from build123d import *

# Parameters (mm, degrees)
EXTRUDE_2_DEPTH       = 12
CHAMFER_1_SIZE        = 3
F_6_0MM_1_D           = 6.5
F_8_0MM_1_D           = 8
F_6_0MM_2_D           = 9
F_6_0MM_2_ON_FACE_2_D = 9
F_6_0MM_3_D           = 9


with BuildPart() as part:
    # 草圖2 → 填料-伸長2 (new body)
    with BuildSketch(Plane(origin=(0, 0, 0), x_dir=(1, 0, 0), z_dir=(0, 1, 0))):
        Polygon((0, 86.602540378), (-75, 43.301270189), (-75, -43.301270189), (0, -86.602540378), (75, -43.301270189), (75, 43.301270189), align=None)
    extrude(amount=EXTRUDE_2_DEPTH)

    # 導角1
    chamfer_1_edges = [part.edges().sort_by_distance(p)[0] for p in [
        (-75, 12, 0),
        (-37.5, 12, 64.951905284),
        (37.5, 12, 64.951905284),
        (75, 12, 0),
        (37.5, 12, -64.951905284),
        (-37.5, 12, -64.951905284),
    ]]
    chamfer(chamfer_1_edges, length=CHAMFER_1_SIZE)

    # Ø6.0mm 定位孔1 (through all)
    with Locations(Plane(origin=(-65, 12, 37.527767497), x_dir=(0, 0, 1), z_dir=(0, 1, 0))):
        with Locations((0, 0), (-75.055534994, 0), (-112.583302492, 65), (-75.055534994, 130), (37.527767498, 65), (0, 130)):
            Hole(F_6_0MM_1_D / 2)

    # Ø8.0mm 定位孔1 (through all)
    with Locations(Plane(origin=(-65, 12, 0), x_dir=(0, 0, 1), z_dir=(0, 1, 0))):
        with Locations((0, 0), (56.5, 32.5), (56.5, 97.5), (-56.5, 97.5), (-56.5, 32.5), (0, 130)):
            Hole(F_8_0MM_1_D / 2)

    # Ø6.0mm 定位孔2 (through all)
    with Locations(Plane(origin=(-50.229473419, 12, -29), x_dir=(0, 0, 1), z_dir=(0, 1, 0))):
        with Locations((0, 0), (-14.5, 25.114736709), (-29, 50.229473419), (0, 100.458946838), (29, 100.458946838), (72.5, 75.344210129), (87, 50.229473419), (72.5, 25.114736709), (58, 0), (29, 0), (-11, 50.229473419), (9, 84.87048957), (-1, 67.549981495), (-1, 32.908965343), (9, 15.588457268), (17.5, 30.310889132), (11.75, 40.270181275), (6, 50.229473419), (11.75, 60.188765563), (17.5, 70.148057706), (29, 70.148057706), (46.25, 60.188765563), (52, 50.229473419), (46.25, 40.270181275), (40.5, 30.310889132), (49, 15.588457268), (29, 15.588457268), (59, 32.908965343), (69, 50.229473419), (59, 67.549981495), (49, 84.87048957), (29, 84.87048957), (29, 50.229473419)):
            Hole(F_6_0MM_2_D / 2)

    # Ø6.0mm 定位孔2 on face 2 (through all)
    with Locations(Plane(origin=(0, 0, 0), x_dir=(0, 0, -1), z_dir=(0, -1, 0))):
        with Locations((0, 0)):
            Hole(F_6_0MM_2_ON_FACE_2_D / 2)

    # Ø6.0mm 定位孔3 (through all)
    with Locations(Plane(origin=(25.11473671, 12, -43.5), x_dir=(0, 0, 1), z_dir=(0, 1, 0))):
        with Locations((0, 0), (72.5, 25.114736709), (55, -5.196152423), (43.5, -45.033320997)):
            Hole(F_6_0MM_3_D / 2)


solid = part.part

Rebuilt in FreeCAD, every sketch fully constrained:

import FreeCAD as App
import Part
import Sketcher
Q = App.Units.Quantity


def edges_at(feature, points):
    """Names of the edges that pass closest to the given points."""
    edges = feature.Shape.Edges
    near = lambda p: min(range(len(edges)), key=lambda i: edges[i].distToShape(Part.Vertex(*p))[0])
    return sorted({f"Edge{near(p) + 1}" for p in points})

doc = App.newDocument("Part")
params = doc.addObject("Spreadsheet::Sheet", "Params")
for row, (alias, value) in enumerate([
    ("pad1_length", "12 mm"),
    ("chamfer_size", "3 mm"),
    ("sketch2_diameter", "6.5 mm"),
    ("hole_diameter", "6.5 mm"),
    ("sketch3_diameter", "8 mm"),
    ("hole2_diameter", "8 mm"),
    ("sketch4_diameter", "9 mm"),
    ("hole3_diameter", "9 mm"),
    ("sketch5_diameter", "9 mm"),
    ("hole4_diameter", "9 mm"),
    ("sketch6_diameter", "9 mm"),
    ("hole5_diameter", "9 mm"),
], start=1):
    params.set(f"A{row}", alias)
    params.set(f"B{row}", "=" + value)
    params.setAlias(f"B{row}", alias)

body = doc.addObject("PartDesign::Body", "Body")

# Sketch on XZ plane
sketch1 = body.newObject("Sketcher::SketchObject", "Sketch")
sketch1.AttachmentSupport = (doc.getObject("XZ_Plane"), [""])
sketch1.MapMode = "FlatFace"
sketch1.addGeometry(Part.LineSegment(App.Vector(0, -87, 0), App.Vector(-75, -43, 0)), False)
sketch1.addGeometry(Part.LineSegment(App.Vector(-75, -43, 0), App.Vector(-75, 43, 0)), False)
sketch1.addGeometry(Part.LineSegment(App.Vector(-75, 43, 0), App.Vector(0, 87, 0)), False)
sketch1.addGeometry(Part.LineSegment(App.Vector(0, 87, 0), App.Vector(75, 43, 0)), False)
sketch1.addGeometry(Part.LineSegment(App.Vector(75, 43, 0), App.Vector(75, -43, 0)), False)
sketch1.addGeometry(Part.LineSegment(App.Vector(75, -43, 0), App.Vector(0, -87, 0)), False)
sketch1.addConstraint(Sketcher.Constraint("Coincident", 0, 2, 1, 1))
sketch1.addConstraint(Sketcher.Constraint("Coincident", 1, 2, 2, 1))
sketch1.addConstraint(Sketcher.Constraint("Coincident", 2, 2, 3, 1))
sketch1.addConstraint(Sketcher.Constraint("Coincident", 3, 2, 4, 1))
sketch1.addConstraint(Sketcher.Constraint("Coincident", 4, 2, 5, 1))
sketch1.addConstraint(Sketcher.Constraint("Coincident", 5, 2, 0, 1))
sketch1.addConstraint(Sketcher.Constraint("Vertical", 1))
sketch1.addConstraint(Sketcher.Constraint("Vertical", 4))
sketch1.addConstraint(Sketcher.Constraint("Symmetric", 0, 2, 3, 2, -1, 1))
sketch1.addConstraint(Sketcher.Constraint("Symmetric", 2, 2, 5, 2, -1, 1))
sketch1.addConstraint(Sketcher.Constraint("PointOnObject", 2, 2, -2))
sketch1.addConstraint(Sketcher.Constraint("Parallel", 2, 5))
sketch1.addConstraint(Sketcher.Constraint("Horizontal", 1, 2, 3, 2))
sketch1.addConstraint(Sketcher.Constraint("Angle", 0, Q("150 deg")))
sketch1.addConstraint(Sketcher.Constraint("DistanceX", 0, 2, -1, 1, Q("75 mm")))
sketch1.addConstraint(Sketcher.Constraint("DistanceY", 1, 1, 1, 2, Q("86.60254 mm")))
pad1 = body.newObject("PartDesign::Pad", "Pad")
pad1.Profile = sketch1
pad1.setExpression("Length", "Params.pad1_length")
pad1.Reversed = True
doc.recompute()

chamfer = body.newObject("PartDesign::Chamfer", "Chamfer")
chamfer.Base = (pad1, edges_at(pad1, [
    (-75, 12, 0),
    (-37.5, 12, 64.952),
    (37.5, 12, 64.952),
    (75, 12, 0),
    (37.5, 12, -64.952),
    (-37.5, 12, -64.952),
]))
chamfer.setExpression("Size", "Params.chamfer_size")

# Sketch on XZ plane
sketch2 = body.newObject("Sketcher::SketchObject", "Sketch001")
sketch2.AttachmentSupport = (doc.getObject("XZ_Plane"), [""])
sketch2.MapMode = "FlatFace"
sketch2.AttachmentOffset = App.Placement(App.Vector(0, 0, -12), App.Rotation())
sketch2.addGeometry(Part.Circle(App.Vector(-65, 37.5, 0), App.Vector(0, 0, 1), 3.2), False)
sketch2.addGeometry(Part.Circle(App.Vector(-65, -37.5, 0), App.Vector(0, 0, 1), 3.2), False)
sketch2.addGeometry(Part.Circle(App.Vector(0, -75.1, 0), App.Vector(0, 0, 1), 3.2), False)
sketch2.addGeometry(Part.Circle(App.Vector(65, -37.5, 0), App.Vector(0, 0, 1), 3.2), False)
sketch2.addGeometry(Part.Circle(App.Vector(0, 75.1, 0), App.Vector(0, 0, 1), 3.2), False)
sketch2.addGeometry(Part.Circle(App.Vector(65, 37.5, 0), App.Vector(0, 0, 1), 3.2), False)
sketch2.addConstraint(Sketcher.Constraint("Equal", 0, 1))
sketch2.addConstraint(Sketcher.Constraint("Equal", 1, 2))
sketch2.addConstraint(Sketcher.Constraint("Equal", 2, 3))
sketch2.addConstraint(Sketcher.Constraint("Equal", 3, 4))
sketch2.addConstraint(Sketcher.Constraint("Equal", 4, 5))
sketch2.addConstraint(Sketcher.Constraint("Symmetric", 0, 3, 3, 3, -1, 1))
sketch2.addConstraint(Sketcher.Constraint("Symmetric", 2, 3, 4, 3, -1, 1))
sketch2.addConstraint(Sketcher.Constraint("Symmetric", 1, 3, 5, 3, -1, 1))
sketch2.addConstraint(Sketcher.Constraint("Symmetric", 1, 3, 3, 3, -2))
sketch2.addConstraint(Sketcher.Constraint("PointOnObject", 2, 3, -2))
sketch2.addConstraint(Sketcher.Constraint("Diameter", 0, Q("6.5 mm")))
sketch2.addConstraint(Sketcher.Constraint("DistanceX", 0, 3, -1, 1, Q("65 mm")))
sketch2.addConstraint(Sketcher.Constraint("DistanceY", 2, 3, 4, 3, Q("150.11107 mm")))
sketch2.addConstraint(Sketcher.Constraint("DistanceY", -1, 1, 0, 3, Q("37.527767 mm")))
sketch2.setExpression("Constraints[10]", "Params.sketch2_diameter")
doc.recompute()
hole = body.newObject("PartDesign::Hole", "Hole")
hole.Profile = sketch2
hole.ThreadType = "None"
hole.setExpression("Diameter", "Params.hole_diameter")
hole.DepthType = "ThroughAll"
hole.Reversed = True

# Sketch on XZ plane
sketch3 = body.newObject("Sketcher::SketchObject", "Sketch002")
sketch3.AttachmentSupport = (doc.getObject("XZ_Plane"), [""])
sketch3.MapMode = "FlatFace"
sketch3.AttachmentOffset = App.Placement(App.Vector(0, 0, -12), App.Rotation())
sketch3.addGeometry(Part.Circle(App.Vector(-65, 0, 0), App.Vector(0, 0, 1), 4), False)
sketch3.addGeometry(Part.Circle(App.Vector(-32.5, 56.5, 0), App.Vector(0, 0, 1), 4), False)
sketch3.addGeometry(Part.Circle(App.Vector(32.5, 56.5, 0), App.Vector(0, 0, 1), 4), False)
sketch3.addGeometry(Part.Circle(App.Vector(32.5, -56.5, 0), App.Vector(0, 0, 1), 4), False)
sketch3.addGeometry(Part.Circle(App.Vector(-32.5, -56.5, 0), App.Vector(0, 0, 1), 4), False)
sketch3.addGeometry(Part.Circle(App.Vector(65, 0, 0), App.Vector(0, 0, 1), 4), False)
sketch3.addConstraint(Sketcher.Constraint("Equal", 0, 1))
sketch3.addConstraint(Sketcher.Constraint("Equal", 1, 2))
sketch3.addConstraint(Sketcher.Constraint("Equal", 2, 3))
sketch3.addConstraint(Sketcher.Constraint("Equal", 3, 4))
sketch3.addConstraint(Sketcher.Constraint("Equal", 4, 5))
sketch3.addConstraint(Sketcher.Constraint("Symmetric", 1, 3, 3, 3, -1, 1))
sketch3.addConstraint(Sketcher.Constraint("Symmetric", 2, 3, 4, 3, -1, 1))
sketch3.addConstraint(Sketcher.Constraint("Symmetric", 0, 3, 5, 3, -1, 1))
sketch3.addConstraint(Sketcher.Constraint("Symmetric", 1, 3, 2, 3, -2))
sketch3.addConstraint(Sketcher.Constraint("PointOnObject", 0, 3, -1))
sketch3.addConstraint(Sketcher.Constraint("Diameter", 0, Q("8 mm")))
sketch3.addConstraint(Sketcher.Constraint("DistanceX", 0, 3, -1, 1, Q("65 mm")))
sketch3.addConstraint(Sketcher.Constraint("DistanceX", 1, 3, 2, 3, Q("65 mm")))
sketch3.addConstraint(Sketcher.Constraint("DistanceY", 3, 3, 2, 3, Q("113 mm")))
sketch3.setExpression("Constraints[10]", "Params.sketch3_diameter")
doc.recompute()
hole2 = body.newObject("PartDesign::Hole", "Hole001")
hole2.Profile = sketch3
hole2.ThreadType = "None"
hole2.setExpression("Diameter", "Params.hole2_diameter")
hole2.DepthType = "ThroughAll"
hole2.Reversed = True

# Sketch on XZ plane
sketch4 = body.newObject("Sketcher::SketchObject", "Sketch003")
sketch4.AttachmentSupport = (doc.getObject("XZ_Plane"), [""])
sketch4.MapMode = "FlatFace"
sketch4.AttachmentOffset = App.Placement(App.Vector(0, 0, -12), App.Rotation())
sketch4.addGeometry(Part.Circle(App.Vector(-50.2, -29, 0), App.Vector(0, 0, 1), 4.5), False)
sketch4.addGeometry(Part.Circle(App.Vector(-25.1, -43.5, 0), App.Vector(0, 0, 1), 4.5), False)
sketch4.addGeometry(Part.Circle(App.Vector(0, -58, 0), App.Vector(0, 0, 1), 4.5), False)
sketch4.addGeometry(Part.Circle(App.Vector(50.2, -29, 0), App.Vector(0, 0, 1), 4.5), False)
sketch4.addGeometry(Part.Circle(App.Vector(50.2, 0, 0), App.Vector(0, 0, 1), 4.5), False)
sketch4.addGeometry(Part.Circle(App.Vector(25.1, 43.5, 0), App.Vector(0, 0, 1), 4.5), False)
sketch4.addGeometry(Part.Circle(App.Vector(0, 58, 0), App.Vector(0, 0, 1), 4.5), False)
sketch4.addGeometry(Part.Circle(App.Vector(-25.1, 43.5, 0), App.Vector(0, 0, 1), 4.5), False)
sketch4.addGeometry(Part.Circle(App.Vector(-50.2, 29, 0), App.Vector(0, 0, 1), 4.5), False)
sketch4.addGeometry(Part.Circle(App.Vector(-50.2, 0, 0), App.Vector(0, 0, 1), 4.5), False)
sketch4.addGeometry(Part.Circle(App.Vector(0, -40, 0), App.Vector(0, 0, 1), 4.5), False)
sketch4.addGeometry(Part.Circle(App.Vector(34.6, -20, 0), App.Vector(0, 0, 1), 4.5), False)
sketch4.addGeometry(Part.Circle(App.Vector(17.3, -30, 0), App.Vector(0, 0, 1), 4.5), False)
sketch4.addGeometry(Part.Circle(App.Vector(-17.3, -30, 0), App.Vector(0, 0, 1), 4.5), False)
sketch4.addGeometry(Part.Circle(App.Vector(-34.6, -20, 0), App.Vector(0, 0, 1), 4.5), False)
sketch4.addGeometry(Part.Circle(App.Vector(-19.9, -11.5, 0), App.Vector(0, 0, 1), 4.5), False)
sketch4.addGeometry(Part.Circle(App.Vector(-10, -17.2, 0), App.Vector(0, 0, 1), 4.5), False)
sketch4.addGeometry(Part.Circle(App.Vector(0, -23, 0), App.Vector(0, 0, 1), 4.5), False)
sketch4.addGeometry(Part.Circle(App.Vector(10, -17.2, 0), App.Vector(0, 0, 1), 4.5), False)
sketch4.addGeometry(Part.Circle(App.Vector(19.9, -11.5, 0), App.Vector(0, 0, 1), 4.5), False)
sketch4.addGeometry(Part.Circle(App.Vector(19.9, 0, 0), App.Vector(0, 0, 1), 4.5), False)
sketch4.addGeometry(Part.Circle(App.Vector(10, 17.2, 0), App.Vector(0, 0, 1), 4.5), False)
sketch4.addGeometry(Part.Circle(App.Vector(0, 23, 0), App.Vector(0, 0, 1), 4.5), False)
sketch4.addGeometry(Part.Circle(App.Vector(-10, 17.2, 0), App.Vector(0, 0, 1), 4.5), False)
sketch4.addGeometry(Part.Circle(App.Vector(-19.9, 11.5, 0), App.Vector(0, 0, 1), 4.5), False)
sketch4.addGeometry(Part.Circle(App.Vector(-34.6, 20, 0), App.Vector(0, 0, 1), 4.5), False)
sketch4.addGeometry(Part.Circle(App.Vector(-34.6, 0, 0), App.Vector(0, 0, 1), 4.5), False)
sketch4.addGeometry(Part.Circle(App.Vector(-17.3, 30, 0), App.Vector(0, 0, 1), 4.5), False)
sketch4.addGeometry(Part.Circle(App.Vector(0, 40, 0), App.Vector(0, 0, 1), 4.5), False)
sketch4.addGeometry(Part.Circle(App.Vector(17.3, 30, 0), App.Vector(0, 0, 1), 4.5), False)
sketch4.addGeometry(Part.Circle(App.Vector(34.6, 20, 0), App.Vector(0, 0, 1), 4.5), False)
sketch4.addGeometry(Part.Circle(App.Vector(34.6, 0, 0), App.Vector(0, 0, 1), 4.5), False)
sketch4.addGeometry(Part.Circle(App.Vector(0, 0, 0), App.Vector(0, 0, 1), 4.5), False)
sketch4.addConstraint(Sketcher.Constraint("Coincident", 32, 3, -1, 1))
sketch4.addConstraint(Sketcher.Constraint("Equal", 0, 1))
sketch4.addConstraint(Sketcher.Constraint("Equal", 1, 2))
sketch4.addConstraint(Sketcher.Constraint("Equal", 2, 3))
sketch4.addConstraint(Sketcher.Constraint("Equal", 3, 4))
sketch4.addConstraint(Sketcher.Constraint("Equal", 4, 5))
sketch4.addConstraint(Sketcher.Constraint("Equal", 5, 6))
sketch4.addConstraint(Sketcher.Constraint("Equal", 6, 7))
sketch4.addConstraint(Sketcher.Constraint("Equal", 7, 8))
sketch4.addConstraint(Sketcher.Constraint("Equal", 8, 9))
sketch4.addConstraint(Sketcher.Constraint("Equal", 9, 10))
sketch4.addConstraint(Sketcher.Constraint("Equal", 10, 11))
sketch4.addConstraint(Sketcher.Constraint("Equal", 11, 12))
sketch4.addConstraint(Sketcher.Constraint("Equal", 12, 13))
sketch4.addConstraint(Sketcher.Constraint("Equal", 13, 14))
sketch4.addConstraint(Sketcher.Constraint("Equal", 14, 15))
sketch4.addConstraint(Sketcher.Constraint("Equal", 15, 16))
sketch4.addConstraint(Sketcher.Constraint("Equal", 16, 17))
sketch4.addConstraint(Sketcher.Constraint("Equal", 17, 18))
sketch4.addConstraint(Sketcher.Constraint("Equal", 18, 19))
sketch4.addConstraint(Sketcher.Constraint("Equal", 19, 20))
sketch4.addConstraint(Sketcher.Constraint("Equal", 20, 21))
sketch4.addConstraint(Sketcher.Constraint("Equal", 21, 22))
sketch4.addConstraint(Sketcher.Constraint("Equal", 22, 23))
sketch4.addConstraint(Sketcher.Constraint("Equal", 23, 24))
sketch4.addConstraint(Sketcher.Constraint("Equal", 24, 25))
sketch4.addConstraint(Sketcher.Constraint("Equal", 25, 26))
sketch4.addConstraint(Sketcher.Constraint("Equal", 26, 27))
sketch4.addConstraint(Sketcher.Constraint("Equal", 27, 28))
sketch4.addConstraint(Sketcher.Constraint("Equal", 28, 29))
sketch4.addConstraint(Sketcher.Constraint("Equal", 29, 30))
sketch4.addConstraint(Sketcher.Constraint("Equal", 30, 31))
sketch4.addConstraint(Sketcher.Constraint("Equal", 31, 32))
sketch4.addConstraint(Sketcher.Constraint("Symmetric", 1, 3, 5, 3, -1, 1))
sketch4.addConstraint(Sketcher.Constraint("Symmetric", 2, 3, 6, 3, -1, 1))
sketch4.addConstraint(Sketcher.Constraint("Symmetric", 3, 3, 8, 3, -1, 1))
sketch4.addConstraint(Sketcher.Constraint("Symmetric", 4, 3, 9, 3, -1, 1))
sketch4.addConstraint(Sketcher.Constraint("Symmetric", 16, 3, 21, 3, -1, 1))
sketch4.addConstraint(Sketcher.Constraint("Symmetric", 17, 3, 22, 3, -1, 1))
sketch4.addConstraint(Sketcher.Constraint("Symmetric", 18, 3, 23, 3, -1, 1))
sketch4.addConstraint(Sketcher.Constraint("Symmetric", 19, 3, 24, 3, -1, 1))
sketch4.addConstraint(Sketcher.Constraint("Symmetric", 11, 3, 25, 3, -1, 1))
sketch4.addConstraint(Sketcher.Constraint("Symmetric", 12, 3, 27, 3, -1, 1))
sketch4.addConstraint(Sketcher.Constraint("Symmetric", 10, 3, 28, 3, -1, 1))
sketch4.addConstraint(Sketcher.Constraint("Symmetric", 13, 3, 29, 3, -1, 1))
sketch4.addConstraint(Sketcher.Constraint("Symmetric", 14, 3, 30, 3, -1, 1))
sketch4.addConstraint(Sketcher.Constraint("Symmetric", 26, 3, 31, 3, -1, 1))
sketch4.addConstraint(Sketcher.Constraint("Symmetric", 0, 3, 3, 3, -2))
sketch4.addConstraint(Sketcher.Constraint("Symmetric", 5, 3, 7, 3, -2))
sketch4.addConstraint(Sketcher.Constraint("Symmetric", 12, 3, 13, 3, -2))
sketch4.addConstraint(Sketcher.Constraint("Symmetric", 11, 3, 14, 3, -2))
sketch4.addConstraint(Sketcher.Constraint("Symmetric", 16, 3, 18, 3, -2))
sketch4.addConstraint(Sketcher.Constraint("Symmetric", 15, 3, 19, 3, -2))
sketch4.addConstraint(Sketcher.Constraint("PointOnObject", 2, 3, -2))
sketch4.addConstraint(Sketcher.Constraint("PointOnObject", 4, 3, -1))
sketch4.addConstraint(Sketcher.Constraint("PointOnObject", 10, 3, -2))
sketch4.addConstraint(Sketcher.Constraint("PointOnObject", 17, 3, -2))
sketch4.addConstraint(Sketcher.Constraint("PointOnObject", 20, 3, -1))
sketch4.addConstraint(Sketcher.Constraint("PointOnObject", 26, 3, -1))
sketch4.addConstraint(Sketcher.Constraint("Vertical", 3, 3, 4, 3))
sketch4.addConstraint(Sketcher.Constraint("Vertical", 19, 3, 20, 3))
sketch4.addConstraint(Sketcher.Constraint("Vertical", 25, 3, 26, 3))
sketch4.addConstraint(Sketcher.Constraint("Diameter", 0, Q("9 mm")))
sketch4.addConstraint(Sketcher.Constraint("DistanceY", 0, 3, -1, 1, Q("29 mm")))
sketch4.addConstraint(Sketcher.Constraint("DistanceY", 2, 3, -1, 1, Q("58 mm")))
sketch4.addConstraint(Sketcher.Constraint("DistanceY", 10, 3, -1, 1, Q("40 mm")))
sketch4.addConstraint(Sketcher.Constraint("DistanceY", 11, 3, -1, 1, Q("20 mm")))
sketch4.addConstraint(Sketcher.Constraint("DistanceY", 12, 3, -1, 1, Q("30 mm")))
sketch4.addConstraint(Sketcher.Constraint("DistanceY", 17, 3, -1, 1, Q("23 mm")))
sketch4.addConstraint(Sketcher.Constraint("DistanceY", 1, 3, 5, 3, Q("87 mm")))
sketch4.addConstraint(Sketcher.Constraint("DistanceY", 1, 3, 15, 3, Q("32 mm")))
sketch4.addConstraint(Sketcher.Constraint("DistanceY", 18, 3, 21, 3, Q("34.5 mm")))
sketch4.addConstraint(Sketcher.Constraint("DistanceX", 16, 3, 12, 3, Q("27.2798 mm")))
sketch4.addConstraint(Sketcher.Constraint("DistanceX", -1, 1, 12, 3, Q("17.320508 mm")))
sketch4.addConstraint(Sketcher.Constraint("DistanceX", 1, 3, 3, 3, Q("75.34421 mm")))
sketch4.addConstraint(Sketcher.Constraint("DistanceX", 12, 3, 11, 3, Q("17.320508 mm")))
sketch4.addConstraint(Sketcher.Constraint("DistanceX", 1, 3, 13, 3, Q("7.794229 mm")))
sketch4.addConstraint(Sketcher.Constraint("DistanceX", 14, 3, 15, 3, Q("14.722432 mm")))
sketch4.setExpression("Constraints[62]", "Params.sketch4_diameter")
doc.recompute()
hole3 = body.newObject("PartDesign::Hole", "Hole002")
hole3.Profile = sketch4
hole3.ThreadType = "None"
hole3.setExpression("Diameter", "Params.hole3_diameter")
hole3.DepthType = "ThroughAll"
hole3.Reversed = True

# Sketch on XZ plane
sketch5 = body.newObject("Sketcher::SketchObject", "Sketch004")
sketch5.AttachmentSupport = (doc.getObject("XZ_Plane"), [""])
sketch5.MapMode = "FlatFace"
sketch5.addGeometry(Part.Circle(App.Vector(0, 0, 0), App.Vector(0, 0, 1), 4.5), False)
sketch5.addConstraint(Sketcher.Constraint("Coincident", 0, 3, -1, 1))
sketch5.addConstraint(Sketcher.Constraint("Diameter", 0, Q("9 mm")))
sketch5.setExpression("Constraints[1]", "Params.sketch5_diameter")
doc.recompute()
hole4 = body.newObject("PartDesign::Hole", "Hole003")
hole4.Profile = sketch5
hole4.ThreadType = "None"
hole4.setExpression("Diameter", "Params.hole4_diameter")
hole4.DepthType = "ThroughAll"

# Sketch on XZ plane
sketch6 = body.newObject("Sketcher::SketchObject", "Sketch005")
sketch6.AttachmentSupport = (doc.getObject("XZ_Plane"), [""])
sketch6.MapMode = "FlatFace"
sketch6.AttachmentOffset = App.Placement(App.Vector(0, 0, -12), App.Rotation())
sketch6.addGeometry(Part.Circle(App.Vector(25.1, -43.5, 0), App.Vector(0, 0, 1), 4.5), False)
sketch6.addGeometry(Part.Circle(App.Vector(50.2, 29, 0), App.Vector(0, 0, 1), 4.5), False)
sketch6.addGeometry(Part.Circle(App.Vector(19.9, 11.5, 0), App.Vector(0, 0, 1), 4.5), False)
sketch6.addGeometry(Part.Circle(App.Vector(-19.9, 0, 0), App.Vector(0, 0, 1), 4.5), False)
sketch6.addConstraint(Sketcher.Constraint("Equal", 0, 1))
sketch6.addConstraint(Sketcher.Constraint("Equal", 1, 2))
sketch6.addConstraint(Sketcher.Constraint("Equal", 2, 3))
sketch6.addConstraint(Sketcher.Constraint("PointOnObject", 3, 3, -1))
sketch6.addConstraint(Sketcher.Constraint("Diameter", 0, Q("9 mm")))
sketch6.addConstraint(Sketcher.Constraint("DistanceY", -1, 1, 1, 3, Q("29 mm")))
sketch6.addConstraint(Sketcher.Constraint("DistanceY", 0, 3, 2, 3, Q("55 mm")))
sketch6.addConstraint(Sketcher.Constraint("DistanceY", 0, 3, -1, 1, Q("43.5 mm")))
sketch6.addConstraint(Sketcher.Constraint("DistanceX", 2, 3, 1, 3, Q("30.310889 mm")))
sketch6.addConstraint(Sketcher.Constraint("DistanceX", 3, 3, 2, 3, Q("39.837169 mm")))
sketch6.addConstraint(Sketcher.Constraint("DistanceX", 3, 3, 0, 3, Q("45.033321 mm")))
sketch6.addConstraint(Sketcher.Constraint("DistanceX", -1, 1, 0, 3, Q("25.114737 mm")))
sketch6.setExpression("Constraints[4]", "Params.sketch6_diameter")
doc.recompute()
hole5 = body.newObject("PartDesign::Hole", "Hole004")
hole5.Profile = sketch6
hole5.ThreadType = "None"
hole5.setExpression("Diameter", "Params.hole5_diameter")
hole5.DepthType = "ThroughAll"
hole5.Reversed = True

doc.recompute()
